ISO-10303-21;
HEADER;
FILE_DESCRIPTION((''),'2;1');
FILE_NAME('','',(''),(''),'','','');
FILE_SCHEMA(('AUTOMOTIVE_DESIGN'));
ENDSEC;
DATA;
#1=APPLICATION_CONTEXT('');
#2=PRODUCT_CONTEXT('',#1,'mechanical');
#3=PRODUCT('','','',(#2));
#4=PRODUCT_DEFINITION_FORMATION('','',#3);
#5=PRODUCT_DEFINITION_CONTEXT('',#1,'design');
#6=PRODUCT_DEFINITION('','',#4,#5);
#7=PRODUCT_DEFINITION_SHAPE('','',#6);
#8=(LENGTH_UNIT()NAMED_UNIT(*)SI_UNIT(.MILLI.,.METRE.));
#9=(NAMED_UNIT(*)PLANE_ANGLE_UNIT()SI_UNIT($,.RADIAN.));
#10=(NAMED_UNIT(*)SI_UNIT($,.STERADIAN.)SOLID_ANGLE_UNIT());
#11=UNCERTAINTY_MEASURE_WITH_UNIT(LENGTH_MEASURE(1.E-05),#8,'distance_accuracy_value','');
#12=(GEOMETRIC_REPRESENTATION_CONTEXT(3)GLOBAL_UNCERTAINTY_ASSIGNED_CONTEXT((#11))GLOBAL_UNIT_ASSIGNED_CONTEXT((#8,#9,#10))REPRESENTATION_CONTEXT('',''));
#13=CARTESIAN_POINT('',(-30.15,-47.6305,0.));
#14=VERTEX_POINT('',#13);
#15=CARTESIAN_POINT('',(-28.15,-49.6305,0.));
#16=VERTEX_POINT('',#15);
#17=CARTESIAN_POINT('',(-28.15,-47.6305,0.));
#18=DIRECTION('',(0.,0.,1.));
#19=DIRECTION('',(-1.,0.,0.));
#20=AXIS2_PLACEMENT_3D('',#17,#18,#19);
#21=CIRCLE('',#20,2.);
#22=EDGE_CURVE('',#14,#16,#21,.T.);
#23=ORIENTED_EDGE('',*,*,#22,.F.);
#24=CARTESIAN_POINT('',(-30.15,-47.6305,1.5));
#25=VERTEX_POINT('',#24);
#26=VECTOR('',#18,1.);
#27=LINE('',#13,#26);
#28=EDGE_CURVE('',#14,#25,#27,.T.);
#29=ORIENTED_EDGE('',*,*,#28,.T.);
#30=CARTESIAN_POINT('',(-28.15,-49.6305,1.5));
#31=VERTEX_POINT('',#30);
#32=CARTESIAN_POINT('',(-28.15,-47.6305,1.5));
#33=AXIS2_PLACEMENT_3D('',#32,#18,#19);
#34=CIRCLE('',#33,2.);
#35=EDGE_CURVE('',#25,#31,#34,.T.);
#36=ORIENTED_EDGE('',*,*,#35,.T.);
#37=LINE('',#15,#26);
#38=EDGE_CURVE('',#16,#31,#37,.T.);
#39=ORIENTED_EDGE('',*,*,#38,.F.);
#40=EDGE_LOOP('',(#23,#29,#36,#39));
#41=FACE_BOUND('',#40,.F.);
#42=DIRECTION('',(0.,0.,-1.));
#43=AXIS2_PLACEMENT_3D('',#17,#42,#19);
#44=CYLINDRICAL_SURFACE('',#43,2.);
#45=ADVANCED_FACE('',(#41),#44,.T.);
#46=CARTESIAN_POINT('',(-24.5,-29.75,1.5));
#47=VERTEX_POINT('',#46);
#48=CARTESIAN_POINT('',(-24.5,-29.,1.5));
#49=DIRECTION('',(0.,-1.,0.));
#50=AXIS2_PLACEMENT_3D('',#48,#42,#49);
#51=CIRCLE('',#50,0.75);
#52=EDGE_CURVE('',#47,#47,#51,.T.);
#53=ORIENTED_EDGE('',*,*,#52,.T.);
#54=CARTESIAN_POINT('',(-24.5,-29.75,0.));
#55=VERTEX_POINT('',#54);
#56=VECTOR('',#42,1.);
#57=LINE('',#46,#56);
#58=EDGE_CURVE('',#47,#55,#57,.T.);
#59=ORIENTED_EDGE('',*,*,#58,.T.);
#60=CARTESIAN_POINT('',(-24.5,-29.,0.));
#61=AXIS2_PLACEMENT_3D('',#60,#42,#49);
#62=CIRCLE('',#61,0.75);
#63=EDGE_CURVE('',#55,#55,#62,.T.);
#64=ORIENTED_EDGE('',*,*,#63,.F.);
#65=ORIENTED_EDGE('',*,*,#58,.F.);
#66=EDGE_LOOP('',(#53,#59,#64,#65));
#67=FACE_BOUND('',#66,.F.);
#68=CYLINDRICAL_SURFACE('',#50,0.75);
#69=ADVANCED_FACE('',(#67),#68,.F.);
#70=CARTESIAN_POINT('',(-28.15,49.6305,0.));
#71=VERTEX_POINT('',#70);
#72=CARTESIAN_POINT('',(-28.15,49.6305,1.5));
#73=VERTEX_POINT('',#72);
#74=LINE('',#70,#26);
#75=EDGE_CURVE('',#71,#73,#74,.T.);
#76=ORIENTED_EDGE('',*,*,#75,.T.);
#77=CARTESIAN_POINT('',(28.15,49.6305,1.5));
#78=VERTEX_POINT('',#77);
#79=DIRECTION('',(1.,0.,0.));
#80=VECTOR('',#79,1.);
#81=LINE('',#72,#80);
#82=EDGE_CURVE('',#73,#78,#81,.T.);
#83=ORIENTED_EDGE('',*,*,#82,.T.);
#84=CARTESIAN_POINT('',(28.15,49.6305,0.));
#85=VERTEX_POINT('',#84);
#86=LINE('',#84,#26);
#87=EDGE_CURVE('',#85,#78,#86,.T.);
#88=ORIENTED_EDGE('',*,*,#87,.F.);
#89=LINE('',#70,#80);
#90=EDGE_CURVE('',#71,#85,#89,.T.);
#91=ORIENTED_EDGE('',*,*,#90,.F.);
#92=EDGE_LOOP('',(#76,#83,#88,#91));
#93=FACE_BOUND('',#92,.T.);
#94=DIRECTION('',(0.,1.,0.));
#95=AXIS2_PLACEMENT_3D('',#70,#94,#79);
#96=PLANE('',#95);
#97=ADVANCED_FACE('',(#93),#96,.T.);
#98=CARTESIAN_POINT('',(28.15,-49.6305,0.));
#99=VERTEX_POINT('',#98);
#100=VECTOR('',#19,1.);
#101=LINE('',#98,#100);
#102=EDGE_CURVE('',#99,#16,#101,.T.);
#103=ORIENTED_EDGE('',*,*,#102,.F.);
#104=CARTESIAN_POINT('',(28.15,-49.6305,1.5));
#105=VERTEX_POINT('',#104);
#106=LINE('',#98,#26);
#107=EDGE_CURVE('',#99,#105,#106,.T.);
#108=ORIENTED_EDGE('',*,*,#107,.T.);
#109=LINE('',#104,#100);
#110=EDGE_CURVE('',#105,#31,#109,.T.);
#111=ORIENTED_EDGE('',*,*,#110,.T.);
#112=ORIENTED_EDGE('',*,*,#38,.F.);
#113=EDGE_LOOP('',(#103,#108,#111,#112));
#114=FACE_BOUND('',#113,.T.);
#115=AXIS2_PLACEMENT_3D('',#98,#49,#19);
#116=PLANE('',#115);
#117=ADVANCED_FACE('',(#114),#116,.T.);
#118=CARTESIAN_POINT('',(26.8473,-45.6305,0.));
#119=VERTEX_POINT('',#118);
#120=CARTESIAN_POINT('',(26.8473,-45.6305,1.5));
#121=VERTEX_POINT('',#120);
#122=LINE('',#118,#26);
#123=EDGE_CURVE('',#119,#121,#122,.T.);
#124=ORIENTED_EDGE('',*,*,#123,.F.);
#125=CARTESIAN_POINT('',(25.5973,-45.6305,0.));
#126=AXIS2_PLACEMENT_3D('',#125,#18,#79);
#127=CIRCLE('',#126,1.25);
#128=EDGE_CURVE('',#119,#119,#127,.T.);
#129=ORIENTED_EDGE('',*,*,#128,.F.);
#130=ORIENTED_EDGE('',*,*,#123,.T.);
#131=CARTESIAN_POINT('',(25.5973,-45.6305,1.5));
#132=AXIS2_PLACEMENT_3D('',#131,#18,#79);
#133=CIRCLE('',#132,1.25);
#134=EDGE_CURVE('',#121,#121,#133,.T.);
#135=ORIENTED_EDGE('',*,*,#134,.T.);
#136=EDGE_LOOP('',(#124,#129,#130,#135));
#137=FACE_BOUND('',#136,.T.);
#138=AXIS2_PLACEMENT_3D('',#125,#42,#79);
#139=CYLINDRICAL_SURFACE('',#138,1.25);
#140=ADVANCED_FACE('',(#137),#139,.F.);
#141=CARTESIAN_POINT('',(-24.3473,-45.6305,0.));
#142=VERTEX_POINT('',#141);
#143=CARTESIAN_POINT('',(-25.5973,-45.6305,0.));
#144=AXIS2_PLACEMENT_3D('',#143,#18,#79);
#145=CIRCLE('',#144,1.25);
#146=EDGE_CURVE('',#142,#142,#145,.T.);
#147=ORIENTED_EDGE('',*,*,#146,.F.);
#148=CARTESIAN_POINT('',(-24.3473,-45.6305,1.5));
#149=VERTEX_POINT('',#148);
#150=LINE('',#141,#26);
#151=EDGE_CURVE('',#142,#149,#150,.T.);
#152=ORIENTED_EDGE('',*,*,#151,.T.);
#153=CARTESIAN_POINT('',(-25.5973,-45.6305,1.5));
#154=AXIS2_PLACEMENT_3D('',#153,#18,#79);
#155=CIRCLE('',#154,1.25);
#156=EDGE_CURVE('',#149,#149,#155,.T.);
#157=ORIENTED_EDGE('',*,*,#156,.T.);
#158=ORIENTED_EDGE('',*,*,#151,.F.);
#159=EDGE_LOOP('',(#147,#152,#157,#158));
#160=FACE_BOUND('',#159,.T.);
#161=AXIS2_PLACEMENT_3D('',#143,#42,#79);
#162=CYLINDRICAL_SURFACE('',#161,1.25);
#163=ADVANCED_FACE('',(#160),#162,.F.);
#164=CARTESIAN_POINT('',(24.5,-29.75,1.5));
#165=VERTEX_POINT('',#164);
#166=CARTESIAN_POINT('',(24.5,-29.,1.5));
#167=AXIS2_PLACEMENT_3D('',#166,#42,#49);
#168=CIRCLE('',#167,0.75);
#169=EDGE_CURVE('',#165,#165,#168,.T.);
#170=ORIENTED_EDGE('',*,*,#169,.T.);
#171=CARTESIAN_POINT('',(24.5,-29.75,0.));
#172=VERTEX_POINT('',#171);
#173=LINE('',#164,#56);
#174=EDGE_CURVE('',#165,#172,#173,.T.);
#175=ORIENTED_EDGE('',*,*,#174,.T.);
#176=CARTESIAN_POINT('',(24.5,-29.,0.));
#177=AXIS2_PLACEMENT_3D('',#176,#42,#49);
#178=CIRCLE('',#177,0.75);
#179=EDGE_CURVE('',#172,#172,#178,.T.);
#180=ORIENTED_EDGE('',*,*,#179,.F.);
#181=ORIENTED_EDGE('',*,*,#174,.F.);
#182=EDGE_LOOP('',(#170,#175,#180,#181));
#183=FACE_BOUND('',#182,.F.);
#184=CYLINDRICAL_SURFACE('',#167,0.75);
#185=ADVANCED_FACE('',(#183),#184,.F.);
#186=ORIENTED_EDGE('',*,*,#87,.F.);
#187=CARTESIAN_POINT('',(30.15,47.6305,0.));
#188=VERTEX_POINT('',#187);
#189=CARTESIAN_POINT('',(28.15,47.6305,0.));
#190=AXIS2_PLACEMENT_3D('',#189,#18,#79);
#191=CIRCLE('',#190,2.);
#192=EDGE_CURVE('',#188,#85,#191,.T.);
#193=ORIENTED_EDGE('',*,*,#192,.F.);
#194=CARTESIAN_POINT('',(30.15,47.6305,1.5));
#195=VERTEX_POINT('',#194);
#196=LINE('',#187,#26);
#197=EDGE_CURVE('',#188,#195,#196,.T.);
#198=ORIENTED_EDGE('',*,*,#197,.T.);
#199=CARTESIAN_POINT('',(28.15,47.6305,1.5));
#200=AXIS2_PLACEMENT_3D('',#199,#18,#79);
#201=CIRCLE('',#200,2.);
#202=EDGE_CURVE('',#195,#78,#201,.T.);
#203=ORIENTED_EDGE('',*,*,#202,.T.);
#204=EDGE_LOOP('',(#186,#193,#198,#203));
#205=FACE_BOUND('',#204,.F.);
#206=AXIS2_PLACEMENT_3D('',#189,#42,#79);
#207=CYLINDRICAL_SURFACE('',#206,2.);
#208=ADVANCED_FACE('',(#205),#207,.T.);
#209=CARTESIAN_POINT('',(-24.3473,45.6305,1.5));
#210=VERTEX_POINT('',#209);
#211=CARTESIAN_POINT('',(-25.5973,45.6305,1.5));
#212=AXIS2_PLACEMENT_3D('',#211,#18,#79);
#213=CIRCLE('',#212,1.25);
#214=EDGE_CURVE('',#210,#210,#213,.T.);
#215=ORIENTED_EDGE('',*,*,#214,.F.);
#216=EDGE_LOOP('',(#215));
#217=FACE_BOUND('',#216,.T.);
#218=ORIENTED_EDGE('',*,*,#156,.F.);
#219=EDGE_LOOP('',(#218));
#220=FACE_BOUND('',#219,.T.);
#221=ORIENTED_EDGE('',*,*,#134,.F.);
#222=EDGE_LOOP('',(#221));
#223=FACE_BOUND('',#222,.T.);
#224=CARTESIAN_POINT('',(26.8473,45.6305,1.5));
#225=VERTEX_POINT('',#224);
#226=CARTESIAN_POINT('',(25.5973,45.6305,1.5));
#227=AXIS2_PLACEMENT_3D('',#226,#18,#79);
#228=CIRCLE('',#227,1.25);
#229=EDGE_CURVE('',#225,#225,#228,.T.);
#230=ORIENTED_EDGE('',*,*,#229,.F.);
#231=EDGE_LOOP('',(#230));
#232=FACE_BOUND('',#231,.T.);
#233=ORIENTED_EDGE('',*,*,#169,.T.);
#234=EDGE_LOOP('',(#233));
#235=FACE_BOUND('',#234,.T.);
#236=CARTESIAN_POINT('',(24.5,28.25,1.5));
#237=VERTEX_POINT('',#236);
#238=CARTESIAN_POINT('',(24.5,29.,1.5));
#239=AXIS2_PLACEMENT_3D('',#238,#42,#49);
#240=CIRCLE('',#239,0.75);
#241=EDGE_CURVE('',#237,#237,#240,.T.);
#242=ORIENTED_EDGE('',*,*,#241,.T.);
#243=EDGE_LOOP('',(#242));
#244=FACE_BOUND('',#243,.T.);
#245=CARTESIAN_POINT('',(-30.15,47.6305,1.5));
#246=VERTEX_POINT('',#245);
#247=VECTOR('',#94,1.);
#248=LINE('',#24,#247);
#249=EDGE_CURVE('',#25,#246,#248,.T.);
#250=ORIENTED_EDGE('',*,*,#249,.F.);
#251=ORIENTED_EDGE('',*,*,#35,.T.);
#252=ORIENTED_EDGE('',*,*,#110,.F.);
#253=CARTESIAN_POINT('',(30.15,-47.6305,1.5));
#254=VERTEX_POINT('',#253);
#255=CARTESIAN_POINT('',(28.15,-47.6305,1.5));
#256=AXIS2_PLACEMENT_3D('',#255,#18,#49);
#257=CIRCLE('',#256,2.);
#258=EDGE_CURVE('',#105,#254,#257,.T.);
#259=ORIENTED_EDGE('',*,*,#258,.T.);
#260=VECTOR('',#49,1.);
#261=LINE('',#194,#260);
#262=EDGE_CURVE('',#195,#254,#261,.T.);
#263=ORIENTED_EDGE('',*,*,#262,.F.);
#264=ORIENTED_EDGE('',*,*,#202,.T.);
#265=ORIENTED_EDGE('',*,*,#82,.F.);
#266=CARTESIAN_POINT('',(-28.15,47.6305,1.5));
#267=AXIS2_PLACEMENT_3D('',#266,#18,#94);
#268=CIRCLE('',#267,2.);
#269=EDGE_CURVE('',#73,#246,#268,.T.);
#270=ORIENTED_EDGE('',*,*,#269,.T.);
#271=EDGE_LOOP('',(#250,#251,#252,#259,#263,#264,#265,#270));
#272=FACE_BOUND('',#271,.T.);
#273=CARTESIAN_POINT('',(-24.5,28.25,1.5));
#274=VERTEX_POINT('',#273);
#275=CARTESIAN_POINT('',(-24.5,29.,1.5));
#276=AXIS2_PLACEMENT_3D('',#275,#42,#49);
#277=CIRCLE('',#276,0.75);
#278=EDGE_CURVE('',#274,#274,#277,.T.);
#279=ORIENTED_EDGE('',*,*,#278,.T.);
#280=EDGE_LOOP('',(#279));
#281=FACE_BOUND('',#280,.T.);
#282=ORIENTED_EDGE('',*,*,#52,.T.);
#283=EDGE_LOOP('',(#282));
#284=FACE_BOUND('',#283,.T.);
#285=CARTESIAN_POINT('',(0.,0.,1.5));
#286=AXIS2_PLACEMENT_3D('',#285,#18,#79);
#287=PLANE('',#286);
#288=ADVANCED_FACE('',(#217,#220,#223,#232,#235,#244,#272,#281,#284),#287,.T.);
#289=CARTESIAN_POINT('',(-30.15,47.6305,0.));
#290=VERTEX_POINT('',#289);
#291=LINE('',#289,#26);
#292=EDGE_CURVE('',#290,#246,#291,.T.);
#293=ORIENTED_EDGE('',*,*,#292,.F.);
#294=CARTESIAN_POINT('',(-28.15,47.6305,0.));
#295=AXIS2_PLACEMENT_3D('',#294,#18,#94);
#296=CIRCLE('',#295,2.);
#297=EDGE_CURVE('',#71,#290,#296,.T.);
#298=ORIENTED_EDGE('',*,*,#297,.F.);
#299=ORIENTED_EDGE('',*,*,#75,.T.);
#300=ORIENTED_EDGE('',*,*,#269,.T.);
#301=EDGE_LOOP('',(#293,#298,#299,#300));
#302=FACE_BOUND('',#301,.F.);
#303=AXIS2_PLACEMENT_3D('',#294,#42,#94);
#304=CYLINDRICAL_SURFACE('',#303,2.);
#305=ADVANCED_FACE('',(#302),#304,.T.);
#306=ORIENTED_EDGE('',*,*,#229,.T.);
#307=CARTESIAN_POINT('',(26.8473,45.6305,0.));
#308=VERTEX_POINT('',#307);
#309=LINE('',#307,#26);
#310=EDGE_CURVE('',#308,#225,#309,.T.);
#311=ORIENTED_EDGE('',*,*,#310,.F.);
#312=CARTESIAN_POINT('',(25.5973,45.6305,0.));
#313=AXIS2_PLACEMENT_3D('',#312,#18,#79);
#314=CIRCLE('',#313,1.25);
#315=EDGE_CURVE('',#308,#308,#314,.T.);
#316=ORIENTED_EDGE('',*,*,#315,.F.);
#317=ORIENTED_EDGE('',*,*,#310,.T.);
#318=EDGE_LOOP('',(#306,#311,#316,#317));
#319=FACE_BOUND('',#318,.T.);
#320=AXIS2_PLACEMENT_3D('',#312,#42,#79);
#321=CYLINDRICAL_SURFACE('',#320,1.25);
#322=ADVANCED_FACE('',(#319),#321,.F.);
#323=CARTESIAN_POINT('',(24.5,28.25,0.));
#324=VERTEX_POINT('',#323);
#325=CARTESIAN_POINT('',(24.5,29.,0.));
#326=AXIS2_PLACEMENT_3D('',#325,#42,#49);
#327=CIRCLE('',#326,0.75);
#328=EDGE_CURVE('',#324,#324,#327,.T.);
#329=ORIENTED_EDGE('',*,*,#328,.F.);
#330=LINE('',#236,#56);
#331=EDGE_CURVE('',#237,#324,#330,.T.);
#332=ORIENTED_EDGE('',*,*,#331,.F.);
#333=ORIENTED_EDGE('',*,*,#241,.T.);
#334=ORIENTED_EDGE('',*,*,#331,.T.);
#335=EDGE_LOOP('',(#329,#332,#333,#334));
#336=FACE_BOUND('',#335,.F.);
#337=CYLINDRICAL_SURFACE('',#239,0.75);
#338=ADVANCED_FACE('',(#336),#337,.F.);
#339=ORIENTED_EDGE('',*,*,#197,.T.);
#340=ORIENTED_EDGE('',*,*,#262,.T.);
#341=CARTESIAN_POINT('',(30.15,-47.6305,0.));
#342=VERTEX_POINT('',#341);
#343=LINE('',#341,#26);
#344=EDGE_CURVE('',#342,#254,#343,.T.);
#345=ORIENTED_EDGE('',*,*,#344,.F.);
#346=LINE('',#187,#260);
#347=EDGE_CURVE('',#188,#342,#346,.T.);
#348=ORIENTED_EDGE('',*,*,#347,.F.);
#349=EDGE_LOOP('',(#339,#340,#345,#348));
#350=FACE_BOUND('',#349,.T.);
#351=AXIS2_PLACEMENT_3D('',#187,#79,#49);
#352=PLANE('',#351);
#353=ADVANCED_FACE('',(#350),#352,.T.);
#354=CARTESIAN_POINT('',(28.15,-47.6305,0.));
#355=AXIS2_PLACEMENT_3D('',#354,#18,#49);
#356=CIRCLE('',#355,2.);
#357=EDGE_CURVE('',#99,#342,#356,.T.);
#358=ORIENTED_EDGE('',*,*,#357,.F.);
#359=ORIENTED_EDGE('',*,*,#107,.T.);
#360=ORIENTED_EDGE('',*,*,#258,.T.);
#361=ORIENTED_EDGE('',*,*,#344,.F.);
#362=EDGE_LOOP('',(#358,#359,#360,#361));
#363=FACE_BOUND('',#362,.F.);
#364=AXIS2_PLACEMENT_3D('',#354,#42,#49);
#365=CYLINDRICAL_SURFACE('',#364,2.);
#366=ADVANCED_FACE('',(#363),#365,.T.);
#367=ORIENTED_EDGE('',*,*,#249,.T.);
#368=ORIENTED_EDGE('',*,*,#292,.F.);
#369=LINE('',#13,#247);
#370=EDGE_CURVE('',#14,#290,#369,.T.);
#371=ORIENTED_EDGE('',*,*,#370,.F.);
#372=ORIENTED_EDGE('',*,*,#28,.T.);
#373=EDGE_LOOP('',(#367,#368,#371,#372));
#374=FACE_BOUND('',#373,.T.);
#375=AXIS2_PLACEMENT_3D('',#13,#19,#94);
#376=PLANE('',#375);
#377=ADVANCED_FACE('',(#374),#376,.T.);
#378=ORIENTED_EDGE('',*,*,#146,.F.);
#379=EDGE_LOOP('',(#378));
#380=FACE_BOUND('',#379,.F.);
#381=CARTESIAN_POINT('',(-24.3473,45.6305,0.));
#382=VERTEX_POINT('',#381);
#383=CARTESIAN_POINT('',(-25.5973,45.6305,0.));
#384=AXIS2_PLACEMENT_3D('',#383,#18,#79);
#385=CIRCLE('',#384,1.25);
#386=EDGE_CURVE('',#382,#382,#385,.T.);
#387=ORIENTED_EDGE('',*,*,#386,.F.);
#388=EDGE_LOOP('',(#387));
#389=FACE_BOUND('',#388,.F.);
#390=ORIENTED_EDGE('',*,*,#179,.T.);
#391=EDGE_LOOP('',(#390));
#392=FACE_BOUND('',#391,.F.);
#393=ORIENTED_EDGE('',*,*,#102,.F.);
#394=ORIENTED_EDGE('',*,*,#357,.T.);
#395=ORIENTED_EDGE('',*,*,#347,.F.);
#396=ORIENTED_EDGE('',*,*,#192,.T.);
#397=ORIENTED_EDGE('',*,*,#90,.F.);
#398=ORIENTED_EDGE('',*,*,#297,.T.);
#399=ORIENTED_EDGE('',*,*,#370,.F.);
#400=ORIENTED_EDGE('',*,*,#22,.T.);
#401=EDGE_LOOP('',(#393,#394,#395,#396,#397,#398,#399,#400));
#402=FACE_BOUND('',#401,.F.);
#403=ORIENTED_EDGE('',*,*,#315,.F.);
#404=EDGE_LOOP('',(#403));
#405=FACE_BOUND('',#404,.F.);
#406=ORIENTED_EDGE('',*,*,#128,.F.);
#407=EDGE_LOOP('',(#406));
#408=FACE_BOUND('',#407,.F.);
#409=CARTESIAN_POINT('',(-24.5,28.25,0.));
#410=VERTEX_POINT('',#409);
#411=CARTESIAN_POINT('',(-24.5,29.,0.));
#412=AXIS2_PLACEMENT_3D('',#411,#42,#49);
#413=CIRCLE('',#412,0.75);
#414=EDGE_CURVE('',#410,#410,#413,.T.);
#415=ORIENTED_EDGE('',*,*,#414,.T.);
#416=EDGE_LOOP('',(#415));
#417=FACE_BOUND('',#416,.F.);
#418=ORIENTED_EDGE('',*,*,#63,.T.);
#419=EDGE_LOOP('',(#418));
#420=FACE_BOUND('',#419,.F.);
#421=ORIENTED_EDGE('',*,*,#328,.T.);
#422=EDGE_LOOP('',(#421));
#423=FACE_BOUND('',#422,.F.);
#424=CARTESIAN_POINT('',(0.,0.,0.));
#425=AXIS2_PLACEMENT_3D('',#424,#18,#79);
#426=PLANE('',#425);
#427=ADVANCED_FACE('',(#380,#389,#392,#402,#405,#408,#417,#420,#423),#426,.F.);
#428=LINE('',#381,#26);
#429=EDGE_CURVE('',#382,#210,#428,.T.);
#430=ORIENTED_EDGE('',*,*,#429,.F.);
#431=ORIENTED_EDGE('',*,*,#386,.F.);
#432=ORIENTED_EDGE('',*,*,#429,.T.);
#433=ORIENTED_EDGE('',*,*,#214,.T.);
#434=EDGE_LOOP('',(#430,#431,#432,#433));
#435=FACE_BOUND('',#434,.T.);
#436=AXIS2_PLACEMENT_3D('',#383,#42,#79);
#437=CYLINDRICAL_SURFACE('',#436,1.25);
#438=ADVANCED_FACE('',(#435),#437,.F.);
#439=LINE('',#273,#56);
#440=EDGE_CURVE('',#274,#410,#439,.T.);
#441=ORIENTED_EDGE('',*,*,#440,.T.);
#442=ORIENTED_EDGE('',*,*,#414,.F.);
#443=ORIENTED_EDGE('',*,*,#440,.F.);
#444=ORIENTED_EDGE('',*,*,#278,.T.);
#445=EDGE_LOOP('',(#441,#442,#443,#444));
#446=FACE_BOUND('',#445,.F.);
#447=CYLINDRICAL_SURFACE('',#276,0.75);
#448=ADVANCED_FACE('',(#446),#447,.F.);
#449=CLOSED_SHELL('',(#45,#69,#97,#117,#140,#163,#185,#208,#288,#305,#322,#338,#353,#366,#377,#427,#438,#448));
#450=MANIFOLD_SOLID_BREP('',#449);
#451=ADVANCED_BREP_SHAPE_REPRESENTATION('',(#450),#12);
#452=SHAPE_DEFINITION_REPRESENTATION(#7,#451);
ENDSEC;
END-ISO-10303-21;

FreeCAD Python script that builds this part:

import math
import FreeCAD as App
import Part
import Sketcher
from FreeCAD import Vector

doc = App.newDocument("Part")
params = doc.addObject("Spreadsheet::Sheet", "Params")
for row, (alias, value) in enumerate([
    ("sketch1_radius", "2 mm"),
    ("sketch1_diameter", "2.5 mm"),
    ("sketch1_width", "56.3 mm"),
    ("pad1_length", "1.5 mm"),
    ("sketch2_diameter", "1.5 mm"),
    ("hole_diameter", "1.5 mm"),
    ("hole_depth", "1.5 mm"),
], start=1):
    params.set(f"A{row}", alias)
    params.set(f"B{row}", "=" + value)
    params.setAlias(f"B{row}", alias)

body = doc.addObject("PartDesign::Body", "Body")

# Sketch on XY plane
sketch1 = body.newObject("Sketcher::SketchObject", "Sketch")
sketch1.AttachmentSupport = (doc.getObject("XY_Plane"), [""])
sketch1.MapMode = "FlatFace"
sketch1.addGeometry([
    Part.LineSegment(Vector(28.1, 49.6, 0), Vector(-28.1, 49.6, 0)),  # 0
    Part.ArcOfCircle(Part.Circle(Vector(-28.1, 47.6, 0), Vector(0, 0, 1), 2), math.radians(90), math.radians(180)),  # 1
    Part.LineSegment(Vector(-30.1, 47.6, 0), Vector(-30.1, -47.6, 0)),  # 2
    Part.ArcOfCircle(Part.Circle(Vector(-28.1, -47.6, 0), Vector(0, 0, 1), 2), math.radians(180), math.radians(270)),  # 3
    Part.LineSegment(Vector(-28.1, -49.6, 0), Vector(28.1, -49.6, 0)),  # 4
    Part.ArcOfCircle(Part.Circle(Vector(28.1, -47.6, 0), Vector(0, 0, 1), 2), math.radians(-90), math.radians(0)),  # 5
    Part.LineSegment(Vector(30.1, -47.6, 0), Vector(30.1, 47.6, 0)),  # 6
    Part.ArcOfCircle(Part.Circle(Vector(28.1, 47.6, 0), Vector(0, 0, 1), 2), math.radians(0), math.radians(90)),  # 7
    Part.Circle(Vector(-25.6, -45.6, 0), Vector(0, 0, 1), 1.2),  # 8
    Part.Circle(Vector(25.6, -45.6, 0), Vector(0, 0, 1), 1.2),  # 9
    Part.Circle(Vector(-25.6, 45.6, 0), Vector(0, 0, 1), 1.2),  # 10
    Part.Circle(Vector(25.6, 45.6, 0), Vector(0, 0, 1), 1.2),  # 11
], False)
sketch1.addConstraint([
    Sketcher.Constraint("Tangent", 0, 2, 1, 1),
    Sketcher.Constraint("Tangent", 1, 2, 2, 1),
    Sketcher.Constraint("Tangent", 2, 2, 3, 1),
    Sketcher.Constraint("Tangent", 3, 2, 4, 1),
    Sketcher.Constraint("Tangent", 4, 2, 5, 1),
    Sketcher.Constraint("Tangent", 5, 2, 6, 1),
    Sketcher.Constraint("Tangent", 6, 2, 7, 1),
    Sketcher.Constraint("Tangent", 7, 2, 0, 1),
    Sketcher.Constraint("Horizontal", 0),
    Sketcher.Constraint("Vertical", 2),
    Sketcher.Constraint("Horizontal", 4),
    Sketcher.Constraint("Vertical", 6),
    Sketcher.Constraint("Equal", 1, 3),
    Sketcher.Constraint("Equal", 3, 5),
    Sketcher.Constraint("Equal", 5, 7),
    Sketcher.Constraint("Equal", 8, 9),
    Sketcher.Constraint("Equal", 9, 10),
    Sketcher.Constraint("Equal", 10, 11),
    Sketcher.Constraint("Symmetric", 1, 3, 5, 3, -1, 1),
    Sketcher.Constraint("Symmetric", 9, 3, 10, 3, -1, 1),
    Sketcher.Constraint("Symmetric", 8, 3, 11, 3, -1, 1),
    Sketcher.Constraint("Symmetric", 8, 3, 9, 3, -2),
    Sketcher.Constraint("Radius", 1, 2.0),
    Sketcher.Constraint("Diameter", 8, 2.5),
    Sketcher.Constraint("DistanceX", 0, 2, 0, 1, 56.3),
    Sketcher.Constraint("DistanceY", 3, 3, 8, 3, 2.0),
    Sketcher.Constraint("DistanceY", 2, 2, 2, 1, 95.261),
    Sketcher.Constraint("DistanceX", 8, 3, 9, 3, 51.1946),
])
sketch1.setExpression("Constraints[22]", "Params.sketch1_radius")
sketch1.setExpression("Constraints[23]", "Params.sketch1_diameter")
sketch1.setExpression("Constraints[24]", "Params.sketch1_width")
pad1 = body.newObject("PartDesign::Pad", "Pad")
pad1.Profile = sketch1
pad1.setExpression("Length", "Params.pad1_length")

# Sketch on XY plane
sketch2 = body.newObject("Sketcher::SketchObject", "Sketch001")
sketch2.AttachmentSupport = (doc.getObject("XY_Plane"), [""])
sketch2.MapMode = "FlatFace"
sketch2.AttachmentOffset = App.Placement(Vector(0, 0, 1.5), App.Rotation())
sketch2.addGeometry([
    Part.Circle(Vector(-24.5, 29, 0), Vector(0, 0, 1), 0.8),
    Part.Circle(Vector(24.5, 29, 0), Vector(0, 0, 1), 0.8),
    Part.Circle(Vector(-24.5, -29, 0), Vector(0, 0, 1), 0.8),
    Part.Circle(Vector(24.5, -29, 0), Vector(0, 0, 1), 0.8),
], False)
sketch2.addConstraint([
    Sketcher.Constraint("Equal", 0, 1),
    Sketcher.Constraint("Equal", 1, 2),
    Sketcher.Constraint("Equal", 2, 3),
    Sketcher.Constraint("Symmetric", 1, 3, 2, 3, -1, 1),
    Sketcher.Constraint("Symmetric", 0, 3, 3, 3, -1, 1),
    Sketcher.Constraint("Symmetric", 0, 3, 1, 3, -2),
    Sketcher.Constraint("Diameter", 0, 1.5),
    Sketcher.Constraint("DistanceY", -1, 1, 0, 3, 29.0),
    Sketcher.Constraint("DistanceX", 0, 3, 1, 3, 49.0),
])
sketch2.setExpression("Constraints[6]", "Params.sketch2_diameter")
doc.recompute()
hole = body.newObject("PartDesign::Hole", "Hole")
hole.Profile = sketch2
hole.ThreadType = "None"
hole.setExpression("Diameter", "Params.hole_diameter")
hole.DepthType = "Dimension"
hole.setExpression("Depth", "Params.hole_depth")
hole.DrillPoint = "Angled"
hole.DrillPointAngle = 118

doc.recompute()
